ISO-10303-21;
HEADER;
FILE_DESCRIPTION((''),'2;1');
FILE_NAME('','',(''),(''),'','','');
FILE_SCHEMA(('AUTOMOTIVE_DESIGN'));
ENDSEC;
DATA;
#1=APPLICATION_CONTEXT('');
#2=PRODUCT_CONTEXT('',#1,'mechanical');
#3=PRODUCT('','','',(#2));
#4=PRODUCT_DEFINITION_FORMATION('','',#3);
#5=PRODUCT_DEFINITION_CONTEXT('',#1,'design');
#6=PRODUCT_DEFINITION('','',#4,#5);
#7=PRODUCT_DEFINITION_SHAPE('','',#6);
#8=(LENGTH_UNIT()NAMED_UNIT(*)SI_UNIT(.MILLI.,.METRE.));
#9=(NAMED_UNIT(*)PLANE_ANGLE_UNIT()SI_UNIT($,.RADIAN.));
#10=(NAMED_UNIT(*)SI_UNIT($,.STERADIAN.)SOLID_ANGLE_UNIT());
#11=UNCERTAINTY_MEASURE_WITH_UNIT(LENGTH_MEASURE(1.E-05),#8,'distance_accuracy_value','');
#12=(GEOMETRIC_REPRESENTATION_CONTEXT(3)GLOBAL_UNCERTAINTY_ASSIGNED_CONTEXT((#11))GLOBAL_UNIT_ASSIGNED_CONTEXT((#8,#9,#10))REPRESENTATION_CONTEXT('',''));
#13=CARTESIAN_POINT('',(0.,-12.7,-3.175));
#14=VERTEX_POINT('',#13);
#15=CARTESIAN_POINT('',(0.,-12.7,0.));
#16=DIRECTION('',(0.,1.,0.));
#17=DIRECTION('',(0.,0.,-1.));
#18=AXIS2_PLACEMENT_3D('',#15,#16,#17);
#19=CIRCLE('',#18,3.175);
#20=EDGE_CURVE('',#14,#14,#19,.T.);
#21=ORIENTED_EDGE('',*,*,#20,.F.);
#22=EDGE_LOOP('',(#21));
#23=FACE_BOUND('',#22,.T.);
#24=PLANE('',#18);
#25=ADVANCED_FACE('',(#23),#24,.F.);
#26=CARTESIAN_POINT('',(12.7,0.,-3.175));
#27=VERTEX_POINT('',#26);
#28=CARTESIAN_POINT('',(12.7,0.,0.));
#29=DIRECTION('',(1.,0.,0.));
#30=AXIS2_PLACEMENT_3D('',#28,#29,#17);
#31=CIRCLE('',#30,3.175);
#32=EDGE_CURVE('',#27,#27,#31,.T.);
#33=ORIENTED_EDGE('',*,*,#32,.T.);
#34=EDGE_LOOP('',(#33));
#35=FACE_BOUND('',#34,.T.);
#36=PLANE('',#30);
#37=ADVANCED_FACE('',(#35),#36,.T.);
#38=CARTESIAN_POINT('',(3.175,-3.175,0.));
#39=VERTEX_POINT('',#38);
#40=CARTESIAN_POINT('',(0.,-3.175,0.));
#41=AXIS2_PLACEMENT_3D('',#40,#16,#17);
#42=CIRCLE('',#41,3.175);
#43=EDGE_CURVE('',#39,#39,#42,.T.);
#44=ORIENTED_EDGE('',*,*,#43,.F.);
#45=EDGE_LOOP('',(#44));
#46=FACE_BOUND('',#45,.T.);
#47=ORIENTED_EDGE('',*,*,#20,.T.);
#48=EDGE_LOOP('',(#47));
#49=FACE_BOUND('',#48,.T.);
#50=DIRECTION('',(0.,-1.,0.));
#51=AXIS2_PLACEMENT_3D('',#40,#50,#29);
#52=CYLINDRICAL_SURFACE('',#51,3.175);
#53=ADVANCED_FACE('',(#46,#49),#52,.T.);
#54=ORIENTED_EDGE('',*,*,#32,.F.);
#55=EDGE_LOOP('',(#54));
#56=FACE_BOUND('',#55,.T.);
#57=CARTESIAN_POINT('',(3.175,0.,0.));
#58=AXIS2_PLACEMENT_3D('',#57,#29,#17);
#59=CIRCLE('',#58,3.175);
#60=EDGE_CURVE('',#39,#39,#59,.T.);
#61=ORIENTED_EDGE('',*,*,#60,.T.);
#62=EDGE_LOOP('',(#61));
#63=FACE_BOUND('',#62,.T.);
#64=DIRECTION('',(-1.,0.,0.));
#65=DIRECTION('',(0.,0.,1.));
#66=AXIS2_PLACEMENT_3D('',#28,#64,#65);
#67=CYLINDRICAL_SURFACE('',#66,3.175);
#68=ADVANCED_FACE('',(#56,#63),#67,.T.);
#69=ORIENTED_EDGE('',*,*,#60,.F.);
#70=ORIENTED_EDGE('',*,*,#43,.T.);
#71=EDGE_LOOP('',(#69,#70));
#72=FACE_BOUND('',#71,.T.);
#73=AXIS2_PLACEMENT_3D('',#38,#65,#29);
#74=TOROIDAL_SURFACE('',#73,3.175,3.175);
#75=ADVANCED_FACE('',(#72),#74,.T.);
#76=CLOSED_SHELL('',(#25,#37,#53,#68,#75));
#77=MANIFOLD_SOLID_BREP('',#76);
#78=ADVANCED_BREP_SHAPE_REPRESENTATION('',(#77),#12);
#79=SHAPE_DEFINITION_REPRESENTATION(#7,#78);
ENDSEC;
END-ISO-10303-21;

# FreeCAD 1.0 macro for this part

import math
import FreeCAD as App
import Part
import Sketcher
from FreeCAD import Vector
Q = App.Units.Quantity

doc = App.newDocument("Part")
body = doc.addObject("PartDesign::Body", "Body")

sketch1 = body.newObject("Sketcher::SketchObject", "Sketch")
sketch1.AttachmentSupport = (doc.getObject("YZ_Plane"), [""])
sketch1.MapMode = "FlatFace"
sketch1.AttachmentOffset = App.Placement(Vector(0, 0, 0.5 * 25.4), App.Rotation())
sketch1.addGeometry(Part.Circle(Vector(0, 0, 0), Vector(0, 0, 1), 3.2), False)
sketch1.addConstraint([
    Sketcher.Constraint("Coincident", 0, 3, -1, 1),
    Sketcher.Constraint("Diameter", 0, Q("0.25 in")),
])

sketch2 = body.newObject("Sketcher::SketchObject", "Sketch001")
sketch2.AttachmentSupport = (doc.getObject("XY_Plane"), [""])
sketch2.MapMode = "FlatFace"
sketch2.addGeometry([
    Part.LineSegment(Vector(12.7, 0, 0), Vector(3.2, 0, 0)),
    Part.ArcOfCircle(Part.Circle(Vector(3.2, -3.2, 0), Vector(0, 0, 1), 3.2), math.radians(90), math.radians(180)),
    Part.LineSegment(Vector(0, -3.2, 0), Vector(0, -12.7, 0)),
], False)
sketch2.addConstraint([
    Sketcher.Constraint("Tangent", 0, 2, 1, 1),
    Sketcher.Constraint("Tangent", 1, 2, 2, 1),
    Sketcher.Constraint("Horizontal", 0),
    Sketcher.Constraint("Vertical", 2),
    Sketcher.Constraint("PointOnObject", 0, 1, -1),
    Sketcher.Constraint("PointOnObject", 1, 2, -2),
    Sketcher.Constraint("Equal", 0, 2),
    Sketcher.Constraint("Radius", 1, Q("0.125 in")),
    Sketcher.Constraint("DistanceX", -1, 1, 0, 1, Q("0.5 in")),
])
doc.recompute()

additivepipe = body.newObject("PartDesign::AdditivePipe", "AdditivePipe")
additivepipe.Profile = sketch1
additivepipe.Spine = (sketch2, ["Edge1", "Edge2", "Edge3"])

doc.recompute()
